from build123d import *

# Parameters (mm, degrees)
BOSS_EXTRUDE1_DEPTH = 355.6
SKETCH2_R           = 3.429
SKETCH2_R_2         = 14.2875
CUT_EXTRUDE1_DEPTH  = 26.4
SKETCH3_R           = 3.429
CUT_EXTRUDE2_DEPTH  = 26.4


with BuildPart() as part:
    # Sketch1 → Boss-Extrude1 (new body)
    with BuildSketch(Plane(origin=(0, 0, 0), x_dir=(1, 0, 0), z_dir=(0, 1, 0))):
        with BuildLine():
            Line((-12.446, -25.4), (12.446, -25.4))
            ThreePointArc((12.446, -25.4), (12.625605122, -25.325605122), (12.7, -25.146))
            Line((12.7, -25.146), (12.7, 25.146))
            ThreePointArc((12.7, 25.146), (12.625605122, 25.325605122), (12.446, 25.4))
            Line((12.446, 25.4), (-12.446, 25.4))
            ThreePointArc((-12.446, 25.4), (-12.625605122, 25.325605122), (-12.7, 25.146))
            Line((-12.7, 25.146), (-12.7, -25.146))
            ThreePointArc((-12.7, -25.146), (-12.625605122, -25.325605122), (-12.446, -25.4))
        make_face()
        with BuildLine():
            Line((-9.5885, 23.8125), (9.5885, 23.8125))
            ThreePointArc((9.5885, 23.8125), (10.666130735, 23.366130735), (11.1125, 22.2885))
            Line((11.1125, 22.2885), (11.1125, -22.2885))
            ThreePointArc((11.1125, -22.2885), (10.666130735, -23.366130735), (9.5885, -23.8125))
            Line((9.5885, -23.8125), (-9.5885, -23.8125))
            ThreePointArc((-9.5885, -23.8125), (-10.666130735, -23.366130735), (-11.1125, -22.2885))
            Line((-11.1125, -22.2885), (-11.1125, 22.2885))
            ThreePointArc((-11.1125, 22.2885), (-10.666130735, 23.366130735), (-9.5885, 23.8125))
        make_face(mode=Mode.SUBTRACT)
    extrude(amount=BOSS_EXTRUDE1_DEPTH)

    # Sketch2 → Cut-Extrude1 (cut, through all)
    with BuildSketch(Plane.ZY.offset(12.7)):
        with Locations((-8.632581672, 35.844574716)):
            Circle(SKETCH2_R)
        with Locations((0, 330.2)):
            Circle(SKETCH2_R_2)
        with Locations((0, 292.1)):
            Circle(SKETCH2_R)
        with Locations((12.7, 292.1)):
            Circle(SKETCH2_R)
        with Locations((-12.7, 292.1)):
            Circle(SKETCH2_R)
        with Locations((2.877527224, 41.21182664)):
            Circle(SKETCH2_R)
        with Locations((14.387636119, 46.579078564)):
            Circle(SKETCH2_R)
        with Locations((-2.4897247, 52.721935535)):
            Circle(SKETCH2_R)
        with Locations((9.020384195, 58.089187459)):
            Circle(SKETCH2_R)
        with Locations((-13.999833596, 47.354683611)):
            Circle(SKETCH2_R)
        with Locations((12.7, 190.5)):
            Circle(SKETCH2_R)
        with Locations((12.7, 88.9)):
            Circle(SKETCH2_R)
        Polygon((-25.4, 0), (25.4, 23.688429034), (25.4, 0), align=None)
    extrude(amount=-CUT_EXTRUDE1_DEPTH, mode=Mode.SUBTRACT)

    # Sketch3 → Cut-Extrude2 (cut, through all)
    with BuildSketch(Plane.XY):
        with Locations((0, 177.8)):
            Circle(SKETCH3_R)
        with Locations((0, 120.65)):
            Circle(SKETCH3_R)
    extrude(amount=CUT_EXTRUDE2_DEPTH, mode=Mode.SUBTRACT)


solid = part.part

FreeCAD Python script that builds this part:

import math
import FreeCAD as App
import Part
import Sketcher
from FreeCAD import Vector
Q = App.Units.Quantity


def add_polygon(sketch, points):
    """Adds a closed chain of lines whose ends are joined by coincident constraints."""
    first, n = sketch.GeometryCount, len(points)
    for a, b in zip(points, points[1:] + points[:1]):
        sketch.addGeometry(Part.LineSegment(App.Vector(*a, 0), App.Vector(*b, 0)), False)
    for i in range(n):
        sketch.addConstraint(Sketcher.Constraint("Coincident", first + i, 2, first + (i + 1) % n, 1))

doc = App.newDocument("Part")
body = doc.addObject("PartDesign::Body", "Body")

# Sketch on XZ plane
sketch1 = body.newObject("Sketcher::SketchObject", "Sketch")
sketch1.AttachmentSupport = (doc.getObject("XZ_Plane"), [""])
sketch1.MapMode = "FlatFace"
sketch1.addGeometry([
    Part.LineSegment(Vector(-12.45, 25.4, 0), Vector(12.45, 25.4, 0)),  # 0
    Part.ArcOfCircle(Part.Circle(Vector(12.45, 25.15, 0), Vector(0, 0, 1), 0.25), math.radians(0), math.radians(90)),  # 1
    Part.LineSegment(Vector(12.7, 25.15, 0), Vector(12.7, -25.15, 0)),  # 2
    Part.ArcOfCircle(Part.Circle(Vector(12.45, -25.15, 0), Vector(0, 0, 1), 0.25), math.radians(-90), math.radians(0)),  # 3
    Part.LineSegment(Vector(12.45, -25.4, 0), Vector(-12.45, -25.4, 0)),  # 4
    Part.ArcOfCircle(Part.Circle(Vector(-12.45, -25.15, 0), Vector(0, 0, 1), 0.25), math.radians(-180), math.radians(-90)),  # 5
    Part.LineSegment(Vector(-12.7, -25.15, 0), Vector(-12.7, 25.15, 0)),  # 6
    Part.ArcOfCircle(Part.Circle(Vector(-12.45, 25.15, 0), Vector(0, 0, 1), 0.25), math.radians(90), math.radians(180)),  # 7
    Part.ArcOfCircle(Part.Circle(Vector(-9.59, -22.29, 0), Vector(0, 0, 1), 1.52), math.radians(180), math.radians(270)),  # 8
    Part.LineSegment(Vector(-9.59, -23.81, 0), Vector(9.59, -23.81, 0)),  # 9
    Part.ArcOfCircle(Part.Circle(Vector(9.59, -22.29, 0), Vector(0, 0, 1), 1.52), math.radians(-90), math.radians(0)),  # 10
    Part.LineSegment(Vector(11.11, -22.29, 0), Vector(11.11, 22.29, 0)),  # 11
    Part.ArcOfCircle(Part.Circle(Vector(9.59, 22.29, 0), Vector(0, 0, 1), 1.52), math.radians(0), math.radians(90)),  # 12
    Part.LineSegment(Vector(9.59, 23.81, 0), Vector(-9.59, 23.81, 0)),  # 13
    Part.ArcOfCircle(Part.Circle(Vector(-9.59, 22.29, 0), Vector(0, 0, 1), 1.52), math.radians(90), math.radians(180)),  # 14
    Part.LineSegment(Vector(-11.11, 22.29, 0), Vector(-11.11, -22.29, 0)),  # 15
], False)
sketch1.addConstraint([
    Sketcher.Constraint("Tangent", 0, 2, 1, 2),
    Sketcher.Constraint("Tangent", 1, 1, 2, 1),
    Sketcher.Constraint("Tangent", 2, 2, 3, 2),
    Sketcher.Constraint("Tangent", 3, 1, 4, 1),
    Sketcher.Constraint("Tangent", 4, 2, 5, 2),
    Sketcher.Constraint("Tangent", 5, 1, 6, 1),
    Sketcher.Constraint("Tangent", 6, 2, 7, 2),
    Sketcher.Constraint("Tangent", 7, 1, 0, 1),
    Sketcher.Constraint("Tangent", 8, 2, 9, 1),
    Sketcher.Constraint("Tangent", 9, 2, 10, 1),
    Sketcher.Constraint("Tangent", 10, 2, 11, 1),
    Sketcher.Constraint("Tangent", 11, 2, 12, 1),
    Sketcher.Constraint("Tangent", 12, 2, 13, 1),
    Sketcher.Constraint("Tangent", 13, 2, 14, 1),
    Sketcher.Constraint("Tangent", 14, 2, 15, 1),
    Sketcher.Constraint("Tangent", 15, 2, 8, 1),
    Sketcher.Constraint("Horizontal", 0),
    Sketcher.Constraint("Vertical", 2),
    Sketcher.Constraint("Horizontal", 4),
    Sketcher.Constraint("Vertical", 6),
    Sketcher.Constraint("Horizontal", 9),
    Sketcher.Constraint("Vertical", 11),
    Sketcher.Constraint("Horizontal", 13),
    Sketcher.Constraint("Vertical", 15),
    Sketcher.Constraint("Equal", 1, 3),
    Sketcher.Constraint("Equal", 3, 5),
    Sketcher.Constraint("Equal", 5, 7),
    Sketcher.Constraint("Equal", 8, 10),
    Sketcher.Constraint("Equal", 10, 12),
    Sketcher.Constraint("Equal", 12, 14),
    Sketcher.Constraint("Symmetric", 1, 3, 5, 3, -1, 1),
    Sketcher.Constraint("Symmetric", 8, 3, 12, 3, -1, 1),
    Sketcher.Constraint("Radius", 1, Q("0.01 in")),
    Sketcher.Constraint("Radius", 8, Q("0.06 in")),
    Sketcher.Constraint("DistanceY", -1, 1, 0, 2, Q("1 in")),
    Sketcher.Constraint("DistanceX", 0, 1, 0, 2, Q("0.98 in")),
    Sketcher.Constraint("DistanceX", 9, 1, 9, 2, Q("0.755 in")),
    Sketcher.Constraint("DistanceY", 11, 1, 11, 2, Q("1.755 in")),
])
pad1 = body.newObject("PartDesign::Pad", "Pad")
pad1.Profile = sketch1
pad1.Length = Q("14 in")
pad1.Reversed = True

# Sketch on YZ plane
sketch2 = body.newObject("Sketcher::SketchObject", "Sketch001")
sketch2.AttachmentSupport = (doc.getObject("YZ_Plane"), [""])
sketch2.MapMode = "FlatFace"
sketch2.AttachmentOffset = App.Placement(Vector(0, 0, -0.5 * 25.4), App.Rotation())
sketch2.addGeometry(Part.Circle(Vector(35.8, -8.6, 0), Vector(0, 0, 1), 3.4), False)  # 0
sketch2.addGeometry(Part.Circle(Vector(330.2, 0, 0), Vector(0, 0, 1), 14.3), False)  # 1
sketch2.addGeometry(Part.Circle(Vector(292.1, 0, 0), Vector(0, 0, 1), 3.4), False)  # 2
sketch2.addGeometry(Part.Circle(Vector(292.1, 12.7, 0), Vector(0, 0, 1), 3.4), False)  # 3
sketch2.addGeometry(Part.Circle(Vector(292.1, -12.7, 0), Vector(0, 0, 1), 3.4), False)  # 4
sketch2.addGeometry(Part.Circle(Vector(41.2, 2.9, 0), Vector(0, 0, 1), 3.4), False)  # 5
sketch2.addGeometry(Part.Circle(Vector(46.6, 14.4, 0), Vector(0, 0, 1), 3.4), False)  # 6
sketch2.addGeometry(Part.Circle(Vector(52.7, -2.5, 0), Vector(0, 0, 1), 3.4), False)  # 7
sketch2.addGeometry(Part.Circle(Vector(58.1, 9, 0), Vector(0, 0, 1), 3.4), False)  # 8
sketch2.addGeometry(Part.Circle(Vector(47.4, -14, 0), Vector(0, 0, 1), 3.4), False)  # 9
sketch2.addGeometry(Part.Circle(Vector(190.5, 12.7, 0), Vector(0, 0, 1), 3.4), False)  # 10
sketch2.addGeometry(Part.Circle(Vector(88.9, 12.7, 0), Vector(0, 0, 1), 3.4), False)  # 11
add_polygon(sketch2, [(23.7, 25.4), (0, -25.4), (0, 25.4)])  # lines 12-14
sketch2.addConstraint([
    Sketcher.Constraint("Vertical", 13),
    Sketcher.Constraint("Horizontal", 14),
    Sketcher.Constraint("Equal", 0, 2),
    Sketcher.Constraint("Equal", 2, 3),
    Sketcher.Constraint("Equal", 3, 4),
    Sketcher.Constraint("Equal", 4, 5),
    Sketcher.Constraint("Equal", 5, 6),
    Sketcher.Constraint("Equal", 6, 7),
    Sketcher.Constraint("Equal", 7, 8),
    Sketcher.Constraint("Equal", 8, 9),
    Sketcher.Constraint("Equal", 9, 10),
    Sketcher.Constraint("Equal", 10, 11),
    Sketcher.Constraint("Symmetric", 12, 2, 13, 2, -1, 1),
    Sketcher.Constraint("Symmetric", 3, 3, 4, 3, -1),
    Sketcher.Constraint("PointOnObject", 1, 3, -1),
    Sketcher.Constraint("PointOnObject", 2, 3, -1),
    Sketcher.Constraint("Horizontal", 3, 3, 10, 3),
    Sketcher.Constraint("Horizontal", 10, 3, 11, 3),
    Sketcher.Constraint("Vertical", 2, 3, 3, 3),
    Sketcher.Constraint("Diameter", 0, Q("0.27 in")),
    Sketcher.Constraint("DistanceY", 13, 1, 13, 2, Q("2 in")),
    Sketcher.Constraint("Diameter", 1, Q("1.125 in")),
    Sketcher.Constraint("DistanceX", -1, 1, 1, 3, Q("13 in")),
    Sketcher.Constraint("Angle", 12, Q("-115 deg")),
    Sketcher.Constraint("DistanceY", 4, 3, 3, 3, Q("1 in")),
    Sketcher.Constraint("DistanceX", 10, 3, 3, 3, Q("4 in")),
    Sketcher.Constraint("DistanceX", -1, 1, 2, 3, Q("11.5 in")),
    Sketcher.Constraint("DistanceX", -1, 1, 11, 3, Q("3.5 in")),
    Sketcher.Constraint("DistanceY", 0, 3, -1, 1, 8.632582),
    Sketcher.Constraint("DistanceX", -1, 1, 6, 3, 46.579079),
    Sketcher.Constraint("DistanceX", 0, 3, 5, 3, 5.367252),
    Sketcher.Constraint("DistanceY", 0, 3, 5, 3, 11.510109),
    Sketcher.Constraint("DistanceX", 5, 3, 6, 3, 5.367252),
    Sketcher.Constraint("DistanceY", 5, 3, 6, 3, 11.510109),
    Sketcher.Constraint("DistanceX", 5, 3, 7, 3, 11.510109),
    Sketcher.Constraint("DistanceY", 7, 3, 5, 3, 5.367252),
    Sketcher.Constraint("DistanceX", 6, 3, 8, 3, 11.510109),
    Sketcher.Constraint("DistanceY", 8, 3, 6, 3, 5.367252),
    Sketcher.Constraint("DistanceX", 0, 3, 9, 3, 11.510109),
    Sketcher.Constraint("DistanceY", 9, 3, 0, 3, 5.367252),
])
pocket1 = body.newObject("PartDesign::Pocket", "Pocket")
pocket1.Profile = sketch2
pocket1.Type = "ThroughAll"
pocket1.Reversed = True

# Sketch on XY plane
sketch3 = body.newObject("Sketcher::SketchObject", "Sketch002")
sketch3.AttachmentSupport = (doc.getObject("XY_Plane"), [""])
sketch3.MapMode = "FlatFace"
sketch3.addGeometry([
    Part.Circle(Vector(0, 177.8, 0), Vector(0, 0, 1), 3.4),
    Part.Circle(Vector(0, 120.7, 0), Vector(0, 0, 1), 3.4),
], False)
sketch3.addConstraint([
    Sketcher.Constraint("Equal", 0, 1),
    Sketcher.Constraint("PointOnObject", 0, 3, -2),
    Sketcher.Constraint("PointOnObject", 1, 3, -2),
    Sketcher.Constraint("Diameter", 0, Q("0.27 in")),
    Sketcher.Constraint("DistanceY", -1, 1, 0, 3, Q("7 in")),
    Sketcher.Constraint("DistanceY", -1, 1, 1, 3, Q("4.75 in")),
])
pocket2 = body.newObject("PartDesign::Pocket", "Pocket001")
pocket2.Profile = sketch3
pocket2.Type = "ThroughAll"
pocket2.Reversed = True

doc.recompute()
